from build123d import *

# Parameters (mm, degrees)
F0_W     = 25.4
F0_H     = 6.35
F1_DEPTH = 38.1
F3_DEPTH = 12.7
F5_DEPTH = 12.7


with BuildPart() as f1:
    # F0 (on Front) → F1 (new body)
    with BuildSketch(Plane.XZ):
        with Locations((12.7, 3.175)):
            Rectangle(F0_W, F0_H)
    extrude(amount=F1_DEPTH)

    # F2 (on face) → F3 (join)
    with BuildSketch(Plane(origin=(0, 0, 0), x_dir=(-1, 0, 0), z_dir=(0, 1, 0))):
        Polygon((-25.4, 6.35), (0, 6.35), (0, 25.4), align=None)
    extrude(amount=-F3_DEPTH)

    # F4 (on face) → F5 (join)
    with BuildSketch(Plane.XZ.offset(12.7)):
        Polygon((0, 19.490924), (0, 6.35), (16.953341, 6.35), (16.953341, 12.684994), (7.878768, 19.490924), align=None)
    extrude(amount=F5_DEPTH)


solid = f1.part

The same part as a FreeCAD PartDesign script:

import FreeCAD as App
import Part
import Sketcher
Q = App.Units.Quantity

doc = App.newDocument("Part")
body = doc.addObject("PartDesign::Body", "Body")

sketch1 = body.newObject("Sketcher::SketchObject", "Sketch")
sketch1.AttachmentSupport = (doc.getObject("XZ_Plane"), [""])
sketch1.MapMode = "FlatFace"
sketch1.addGeometry([
    Part.LineSegment(App.Vector(0, 6, 0), App.Vector(0, 0, 0)),
    Part.LineSegment(App.Vector(0, 0, 0), App.Vector(25, 0, 0)),
    Part.LineSegment(App.Vector(25, 0, 0), App.Vector(25, 6, 0)),
    Part.LineSegment(App.Vector(25, 6, 0), App.Vector(0, 6, 0)),
], False)
sketch1.addConstraint([
    Sketcher.Constraint("Coincident", 0, 2, 1, 1),
    Sketcher.Constraint("Coincident", 1, 2, 2, 1),
    Sketcher.Constraint("Coincident", 2, 2, 3, 1),
    Sketcher.Constraint("Coincident", 3, 2, 0, 1),
    Sketcher.Constraint("Vertical", 0),
    Sketcher.Constraint("Horizontal", 1),
    Sketcher.Constraint("Vertical", 2),
    Sketcher.Constraint("Horizontal", 3),
    Sketcher.Constraint("Coincident", 0, 2, -1, 1),
    Sketcher.Constraint("DistanceX", 1, 1, 1, 2, Q("1 in")),
    Sketcher.Constraint("DistanceY", 0, 2, 0, 1, Q("0.25 in")),
])
pad1 = body.newObject("PartDesign::Pad", "Pad")
pad1.Profile = sketch1
pad1.Length = Q("1.5 in")

sketch2 = body.newObject("Sketcher::SketchObject", "Sketch001")
sketch2.AttachmentSupport = (doc.getObject("XZ_Plane"), [""])
sketch2.MapMode = "FlatFace"
sketch2.addGeometry([
    Part.LineSegment(App.Vector(25, 6, 0), App.Vector(0, 6, 0)),
    Part.LineSegment(App.Vector(0, 6, 0), App.Vector(0, 25, 0)),
    Part.LineSegment(App.Vector(0, 25, 0), App.Vector(25, 6, 0)),
], False)
sketch2.addConstraint([
    Sketcher.Constraint("Coincident", 0, 2, 1, 1),
    Sketcher.Constraint("Coincident", 1, 2, 2, 1),
    Sketcher.Constraint("Coincident", 2, 2, 0, 1),
    Sketcher.Constraint("Horizontal", 0),
    Sketcher.Constraint("Vertical", 1),
    Sketcher.Constraint("PointOnObject", 0, 2, -2),
    Sketcher.Constraint("DistanceX", 0, 2, 0, 1, Q("1 in")),
    Sketcher.Constraint("DistanceY", -1, 1, 1, 2, Q("1 in")),
    Sketcher.Constraint("DistanceY", 1, 1, 1, 2, Q("0.75 in")),
])
pad2 = body.newObject("PartDesign::Pad", "Pad001")
pad2.Profile = sketch2
pad2.Length = Q("0.5 in")

sketch3 = body.newObject("Sketcher::SketchObject", "Sketch002")
sketch3.AttachmentSupport = (doc.getObject("XZ_Plane"), [""])
sketch3.MapMode = "FlatFace"
sketch3.AttachmentOffset = App.Placement(App.Vector(0, 0, 0.5 * 25.4), App.Rotation())
sketch3.addGeometry([
    Part.LineSegment(App.Vector(0, 19, 0), App.Vector(0, 6, 0)),
    Part.LineSegment(App.Vector(0, 6, 0), App.Vector(17, 6, 0)),
    Part.LineSegment(App.Vector(17, 6, 0), App.Vector(17, 13, 0)),
    Part.LineSegment(App.Vector(17, 13, 0), App.Vector(8, 19, 0)),
    Part.LineSegment(App.Vector(8, 19, 0), App.Vector(0, 19, 0)),
], False)
sketch3.addConstraint([
    Sketcher.Constraint("Coincident", 0, 2, 1, 1),
    Sketcher.Constraint("Coincident", 1, 2, 2, 1),
    Sketcher.Constraint("Coincident", 2, 2, 3, 1),
    Sketcher.Constraint("Coincident", 3, 2, 4, 1),
    Sketcher.Constraint("Coincident", 4, 2, 0, 1),
    Sketcher.Constraint("Vertical", 0),
    Sketcher.Constraint("Horizontal", 1),
    Sketcher.Constraint("Vertical", 2),
    Sketcher.Constraint("Horizontal", 4),
    Sketcher.Constraint("PointOnObject", 0, 2, -2),
    Sketcher.Constraint("DistanceY", -1, 1, 0, 2, Q("0.25 in")),
    Sketcher.Constraint("DistanceX", 1, 1, 1, 2, Q("16.953341 mm")),
    Sketcher.Constraint("DistanceX", 4, 2, 4, 1, Q("7.878768 mm")),
    Sketcher.Constraint("DistanceY", 0, 2, 0, 1, Q("13.140924 mm")),
    Sketcher.Constraint("DistanceY", 2, 1, 2, 2, Q("6.334994 mm")),
])
pad3 = body.newObject("PartDesign::Pad", "Pad002")
pad3.Profile = sketch3
pad3.Length = Q("0.5 in")

doc.recompute()
